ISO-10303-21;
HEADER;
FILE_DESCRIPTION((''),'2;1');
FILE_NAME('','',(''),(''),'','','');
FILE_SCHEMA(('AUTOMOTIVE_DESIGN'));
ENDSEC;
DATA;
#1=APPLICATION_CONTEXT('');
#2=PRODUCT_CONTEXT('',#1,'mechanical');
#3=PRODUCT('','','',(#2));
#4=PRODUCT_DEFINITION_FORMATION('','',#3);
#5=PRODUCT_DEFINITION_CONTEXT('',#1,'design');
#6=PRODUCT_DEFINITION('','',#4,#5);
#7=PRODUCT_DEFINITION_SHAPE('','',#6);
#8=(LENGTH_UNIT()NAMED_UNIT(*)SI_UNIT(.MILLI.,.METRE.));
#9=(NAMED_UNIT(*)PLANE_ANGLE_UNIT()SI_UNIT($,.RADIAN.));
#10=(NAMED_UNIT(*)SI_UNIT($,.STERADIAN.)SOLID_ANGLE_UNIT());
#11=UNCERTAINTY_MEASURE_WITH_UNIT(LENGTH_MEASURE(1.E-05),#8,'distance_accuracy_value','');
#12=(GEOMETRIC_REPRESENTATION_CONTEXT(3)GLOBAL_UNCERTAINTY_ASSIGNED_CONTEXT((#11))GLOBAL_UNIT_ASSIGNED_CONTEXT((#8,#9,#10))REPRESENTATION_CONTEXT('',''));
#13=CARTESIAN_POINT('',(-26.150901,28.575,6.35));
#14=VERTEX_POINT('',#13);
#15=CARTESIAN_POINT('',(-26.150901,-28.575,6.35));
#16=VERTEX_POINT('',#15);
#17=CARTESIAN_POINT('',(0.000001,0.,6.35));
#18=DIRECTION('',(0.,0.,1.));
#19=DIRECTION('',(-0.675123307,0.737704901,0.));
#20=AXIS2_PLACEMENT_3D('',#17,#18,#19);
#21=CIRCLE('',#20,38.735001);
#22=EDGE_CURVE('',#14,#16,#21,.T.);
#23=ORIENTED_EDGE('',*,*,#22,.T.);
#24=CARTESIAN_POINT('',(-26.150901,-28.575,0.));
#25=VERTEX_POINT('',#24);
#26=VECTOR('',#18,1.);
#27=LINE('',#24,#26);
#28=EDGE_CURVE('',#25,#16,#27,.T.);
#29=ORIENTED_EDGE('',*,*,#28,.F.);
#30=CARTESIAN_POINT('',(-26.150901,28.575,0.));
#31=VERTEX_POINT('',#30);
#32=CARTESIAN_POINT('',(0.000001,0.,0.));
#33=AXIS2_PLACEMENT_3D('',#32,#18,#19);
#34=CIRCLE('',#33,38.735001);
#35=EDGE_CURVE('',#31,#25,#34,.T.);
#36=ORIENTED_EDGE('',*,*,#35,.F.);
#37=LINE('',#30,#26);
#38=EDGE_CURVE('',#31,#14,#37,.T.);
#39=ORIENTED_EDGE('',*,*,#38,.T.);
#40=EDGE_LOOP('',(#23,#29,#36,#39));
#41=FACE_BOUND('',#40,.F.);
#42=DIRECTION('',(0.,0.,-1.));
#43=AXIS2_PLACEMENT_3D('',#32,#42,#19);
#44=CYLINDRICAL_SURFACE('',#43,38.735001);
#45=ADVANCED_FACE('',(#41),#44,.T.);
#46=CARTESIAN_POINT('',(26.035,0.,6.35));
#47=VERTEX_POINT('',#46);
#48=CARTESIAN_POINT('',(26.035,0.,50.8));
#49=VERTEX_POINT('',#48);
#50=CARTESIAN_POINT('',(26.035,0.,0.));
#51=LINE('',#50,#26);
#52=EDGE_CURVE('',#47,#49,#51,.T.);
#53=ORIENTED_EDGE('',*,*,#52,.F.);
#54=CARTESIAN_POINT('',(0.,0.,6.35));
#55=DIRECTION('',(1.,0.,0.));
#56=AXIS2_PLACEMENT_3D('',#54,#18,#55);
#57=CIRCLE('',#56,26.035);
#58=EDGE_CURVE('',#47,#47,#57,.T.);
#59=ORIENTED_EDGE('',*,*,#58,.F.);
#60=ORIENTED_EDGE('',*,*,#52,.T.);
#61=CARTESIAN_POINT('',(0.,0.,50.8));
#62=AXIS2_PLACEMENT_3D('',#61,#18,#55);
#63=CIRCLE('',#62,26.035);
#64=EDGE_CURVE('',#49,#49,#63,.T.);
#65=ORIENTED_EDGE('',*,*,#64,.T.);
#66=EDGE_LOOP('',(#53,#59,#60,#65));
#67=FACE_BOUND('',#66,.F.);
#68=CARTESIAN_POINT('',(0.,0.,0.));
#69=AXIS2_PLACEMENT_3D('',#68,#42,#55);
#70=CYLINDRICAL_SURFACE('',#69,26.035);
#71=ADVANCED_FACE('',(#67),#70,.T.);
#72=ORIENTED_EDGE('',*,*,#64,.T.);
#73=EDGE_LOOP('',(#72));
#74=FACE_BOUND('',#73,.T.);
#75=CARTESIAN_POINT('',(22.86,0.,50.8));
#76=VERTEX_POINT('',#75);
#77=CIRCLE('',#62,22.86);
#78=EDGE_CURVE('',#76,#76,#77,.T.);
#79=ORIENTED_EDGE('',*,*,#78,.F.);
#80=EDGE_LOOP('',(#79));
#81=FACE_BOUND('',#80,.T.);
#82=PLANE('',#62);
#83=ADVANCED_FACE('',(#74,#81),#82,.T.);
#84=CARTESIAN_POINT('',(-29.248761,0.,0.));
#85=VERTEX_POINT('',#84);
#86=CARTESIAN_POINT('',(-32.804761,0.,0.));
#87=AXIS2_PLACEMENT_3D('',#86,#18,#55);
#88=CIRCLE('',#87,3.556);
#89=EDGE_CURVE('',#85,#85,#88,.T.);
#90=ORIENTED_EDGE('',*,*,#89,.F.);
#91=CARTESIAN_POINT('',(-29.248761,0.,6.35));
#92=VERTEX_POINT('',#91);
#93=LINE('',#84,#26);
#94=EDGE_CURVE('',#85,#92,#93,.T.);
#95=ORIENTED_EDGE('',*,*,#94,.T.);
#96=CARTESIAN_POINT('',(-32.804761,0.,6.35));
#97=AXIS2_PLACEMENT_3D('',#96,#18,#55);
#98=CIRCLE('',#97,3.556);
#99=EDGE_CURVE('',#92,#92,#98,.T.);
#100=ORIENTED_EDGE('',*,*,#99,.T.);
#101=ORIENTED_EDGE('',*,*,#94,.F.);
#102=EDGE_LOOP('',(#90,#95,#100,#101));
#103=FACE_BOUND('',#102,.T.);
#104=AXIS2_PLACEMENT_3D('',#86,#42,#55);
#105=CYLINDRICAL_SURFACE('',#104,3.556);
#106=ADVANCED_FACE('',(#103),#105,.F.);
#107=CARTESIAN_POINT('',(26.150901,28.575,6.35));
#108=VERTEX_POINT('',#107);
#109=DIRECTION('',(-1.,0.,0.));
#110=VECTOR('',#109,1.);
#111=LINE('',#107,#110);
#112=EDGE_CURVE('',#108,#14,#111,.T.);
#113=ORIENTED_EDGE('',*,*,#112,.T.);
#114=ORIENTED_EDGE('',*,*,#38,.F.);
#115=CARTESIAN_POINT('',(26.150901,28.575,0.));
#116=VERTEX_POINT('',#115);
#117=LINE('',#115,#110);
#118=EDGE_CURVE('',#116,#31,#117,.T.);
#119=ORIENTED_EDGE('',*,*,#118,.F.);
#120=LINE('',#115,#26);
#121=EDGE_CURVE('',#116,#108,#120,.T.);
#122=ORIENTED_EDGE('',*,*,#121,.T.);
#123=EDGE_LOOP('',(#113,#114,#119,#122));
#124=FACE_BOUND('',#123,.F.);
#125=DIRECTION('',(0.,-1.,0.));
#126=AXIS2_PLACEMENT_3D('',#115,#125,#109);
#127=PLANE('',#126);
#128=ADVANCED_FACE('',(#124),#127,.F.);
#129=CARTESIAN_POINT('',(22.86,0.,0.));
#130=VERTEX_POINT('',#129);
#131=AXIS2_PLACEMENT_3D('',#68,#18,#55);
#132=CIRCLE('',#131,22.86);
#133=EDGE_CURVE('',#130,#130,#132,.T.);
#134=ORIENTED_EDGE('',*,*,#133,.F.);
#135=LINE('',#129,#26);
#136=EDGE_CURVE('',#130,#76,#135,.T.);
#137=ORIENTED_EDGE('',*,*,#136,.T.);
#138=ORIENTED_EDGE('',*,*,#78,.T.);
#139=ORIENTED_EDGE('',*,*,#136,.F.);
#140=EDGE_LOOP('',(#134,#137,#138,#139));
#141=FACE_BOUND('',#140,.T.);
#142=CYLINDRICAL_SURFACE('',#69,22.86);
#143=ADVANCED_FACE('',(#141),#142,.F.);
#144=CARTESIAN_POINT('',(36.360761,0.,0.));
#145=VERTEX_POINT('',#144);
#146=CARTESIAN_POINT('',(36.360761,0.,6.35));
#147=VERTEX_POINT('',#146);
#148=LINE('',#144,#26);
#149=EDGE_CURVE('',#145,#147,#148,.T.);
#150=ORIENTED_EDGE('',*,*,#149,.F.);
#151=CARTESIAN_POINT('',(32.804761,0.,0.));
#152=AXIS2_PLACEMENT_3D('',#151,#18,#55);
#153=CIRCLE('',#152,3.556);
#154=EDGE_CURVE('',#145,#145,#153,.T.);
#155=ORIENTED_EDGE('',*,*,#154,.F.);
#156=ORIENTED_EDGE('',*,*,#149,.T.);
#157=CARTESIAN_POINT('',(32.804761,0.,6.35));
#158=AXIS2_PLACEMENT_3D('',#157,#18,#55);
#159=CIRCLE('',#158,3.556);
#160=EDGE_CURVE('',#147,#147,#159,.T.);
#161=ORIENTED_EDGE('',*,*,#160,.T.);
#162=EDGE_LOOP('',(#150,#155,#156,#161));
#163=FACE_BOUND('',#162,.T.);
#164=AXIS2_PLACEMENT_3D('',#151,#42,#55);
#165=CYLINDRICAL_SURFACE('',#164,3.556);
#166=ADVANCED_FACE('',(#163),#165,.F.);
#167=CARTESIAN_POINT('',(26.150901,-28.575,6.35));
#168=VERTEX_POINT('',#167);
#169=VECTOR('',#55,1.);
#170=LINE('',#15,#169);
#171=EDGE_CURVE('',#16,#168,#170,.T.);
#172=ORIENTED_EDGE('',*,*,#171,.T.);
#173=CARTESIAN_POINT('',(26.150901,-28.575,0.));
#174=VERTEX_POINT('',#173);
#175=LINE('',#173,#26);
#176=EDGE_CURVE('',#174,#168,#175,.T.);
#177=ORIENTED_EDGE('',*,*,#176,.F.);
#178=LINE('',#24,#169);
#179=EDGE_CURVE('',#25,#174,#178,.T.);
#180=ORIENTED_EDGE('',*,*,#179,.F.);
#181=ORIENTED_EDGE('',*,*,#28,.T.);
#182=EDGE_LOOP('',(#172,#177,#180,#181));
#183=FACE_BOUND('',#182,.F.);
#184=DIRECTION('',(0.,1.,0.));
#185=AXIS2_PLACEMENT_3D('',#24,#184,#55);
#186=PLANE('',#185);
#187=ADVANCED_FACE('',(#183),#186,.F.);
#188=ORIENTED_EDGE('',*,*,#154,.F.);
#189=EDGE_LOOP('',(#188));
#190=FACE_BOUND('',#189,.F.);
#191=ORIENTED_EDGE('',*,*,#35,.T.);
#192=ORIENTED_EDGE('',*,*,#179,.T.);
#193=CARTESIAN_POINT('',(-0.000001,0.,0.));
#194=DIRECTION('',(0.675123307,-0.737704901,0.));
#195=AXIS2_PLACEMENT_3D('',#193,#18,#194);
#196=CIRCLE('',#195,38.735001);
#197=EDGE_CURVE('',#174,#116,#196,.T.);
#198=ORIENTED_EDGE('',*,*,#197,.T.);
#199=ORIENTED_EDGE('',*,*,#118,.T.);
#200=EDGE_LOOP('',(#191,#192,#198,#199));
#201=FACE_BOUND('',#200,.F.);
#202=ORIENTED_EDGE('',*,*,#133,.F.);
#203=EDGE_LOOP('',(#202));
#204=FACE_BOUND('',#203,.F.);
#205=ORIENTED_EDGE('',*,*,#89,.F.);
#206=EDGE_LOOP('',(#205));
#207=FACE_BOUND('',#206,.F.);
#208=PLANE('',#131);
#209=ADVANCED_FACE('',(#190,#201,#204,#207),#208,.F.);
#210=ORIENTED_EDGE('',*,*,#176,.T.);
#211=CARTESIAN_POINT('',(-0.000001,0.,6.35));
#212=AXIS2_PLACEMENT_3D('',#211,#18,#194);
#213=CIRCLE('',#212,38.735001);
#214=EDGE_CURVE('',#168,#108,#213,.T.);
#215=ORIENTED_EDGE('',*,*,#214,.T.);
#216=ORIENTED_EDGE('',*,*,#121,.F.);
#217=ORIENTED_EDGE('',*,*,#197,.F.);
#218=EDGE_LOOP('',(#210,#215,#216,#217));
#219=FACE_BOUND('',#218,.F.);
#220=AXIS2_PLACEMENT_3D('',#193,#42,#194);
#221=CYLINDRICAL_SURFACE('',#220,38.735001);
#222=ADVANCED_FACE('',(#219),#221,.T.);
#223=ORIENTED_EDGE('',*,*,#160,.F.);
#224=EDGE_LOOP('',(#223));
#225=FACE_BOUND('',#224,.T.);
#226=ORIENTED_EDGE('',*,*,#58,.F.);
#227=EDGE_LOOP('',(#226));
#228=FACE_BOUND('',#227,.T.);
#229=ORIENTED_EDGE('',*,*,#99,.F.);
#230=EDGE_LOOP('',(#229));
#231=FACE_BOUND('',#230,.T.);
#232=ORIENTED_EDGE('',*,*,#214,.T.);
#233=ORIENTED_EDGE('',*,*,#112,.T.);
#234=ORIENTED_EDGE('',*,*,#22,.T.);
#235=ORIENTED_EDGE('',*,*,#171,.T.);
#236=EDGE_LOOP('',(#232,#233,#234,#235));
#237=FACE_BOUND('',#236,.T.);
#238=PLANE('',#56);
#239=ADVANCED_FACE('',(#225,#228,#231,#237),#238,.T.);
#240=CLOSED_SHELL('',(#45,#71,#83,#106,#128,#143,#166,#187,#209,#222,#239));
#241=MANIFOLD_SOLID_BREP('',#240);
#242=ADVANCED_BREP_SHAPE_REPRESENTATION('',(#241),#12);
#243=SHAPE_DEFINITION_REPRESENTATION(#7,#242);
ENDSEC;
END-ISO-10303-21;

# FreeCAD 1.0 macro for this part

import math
import FreeCAD as App
import Part
import Sketcher
Q = App.Units.Quantity

doc = App.newDocument("Part")
body = doc.addObject("PartDesign::Body", "Body")

# Sketch on XY plane
sketch1 = body.newObject("Sketcher::SketchObject", "Sketch")
sketch1.AttachmentSupport = (doc.getObject("XY_Plane"), [""])
sketch1.MapMode = "FlatFace"
sketch1.addGeometry([
    Part.Circle(App.Vector(0, 0, 0), App.Vector(0, 0, 1), 26),
    Part.Circle(App.Vector(0, 0, 0), App.Vector(0, 0, 1), 23),
], False)
sketch1.addConstraint([
    Sketcher.Constraint("Coincident", 0, 3, -1, 1),
    Sketcher.Constraint("Coincident", 1, 3, -1, 1),
    Sketcher.Constraint("Diameter", 1, Q("1.8 in")),
    Sketcher.Constraint("Diameter", 0, Q("2.05 in")),
])
pad1 = body.newObject("PartDesign::Pad", "Pad")
pad1.Profile = sketch1
pad1.Length = Q("2 in")

# Sketch on XY plane
sketch2 = body.newObject("Sketcher::SketchObject", "Sketch001")
sketch2.AttachmentSupport = (doc.getObject("XY_Plane"), [""])
sketch2.MapMode = "FlatFace"
sketch2.addGeometry([
    Part.LineSegment(App.Vector(26.2, 28.6, 0), App.Vector(-26.2, 28.6, 0)),  # 0
    Part.ArcOfCircle(Part.Circle(App.Vector(0, 0, 0), App.Vector(0, 0, 1), 38.7), math.radians(132), math.radians(228)),  # 1
    Part.LineSegment(App.Vector(-26.2, -28.6, 0), App.Vector(26.2, -28.6, 0)),  # 2
    Part.ArcOfCircle(Part.Circle(App.Vector(0, 0, 0), App.Vector(0, 0, 1), 38.7), math.radians(-48), math.radians(48)),  # 3
    Part.Circle(App.Vector(-32.8, 0, 0), App.Vector(0, 0, 1), 3.6),  # 4
    Part.Circle(App.Vector(0, 0, 0), App.Vector(0, 0, 1), 26),  # 5
    Part.Circle(App.Vector(32.8, 0, 0), App.Vector(0, 0, 1), 3.6),  # 6
], False)
sketch2.addConstraint([
    Sketcher.Constraint("Coincident", 0, 2, 1, 1),
    Sketcher.Constraint("Coincident", 1, 2, 2, 1),
    Sketcher.Constraint("Coincident", 2, 2, 3, 1),
    Sketcher.Constraint("Coincident", 3, 2, 0, 1),
    Sketcher.Constraint("Horizontal", 0),
    Sketcher.Constraint("Horizontal", 2),
    Sketcher.Constraint("Coincident", 1, 3, -1, 1),
    Sketcher.Constraint("Coincident", 3, 3, -1, 1),
    Sketcher.Constraint("Coincident", 5, 3, -1, 1),
    Sketcher.Constraint("Equal", 1, 3),
    Sketcher.Constraint("Equal", 4, 6),
    Sketcher.Constraint("Symmetric", 4, 3, 6, 3, -1, 1),
    Sketcher.Constraint("PointOnObject", 4, 3, -1),
    Sketcher.Constraint("Vertical", 0, 2, 1, 2),
    Sketcher.Constraint("Diameter", 4, Q("0.28 in")),
    Sketcher.Constraint("Diameter", 5, Q("2.05 in")),
    Sketcher.Constraint("Radius", 1, Q("1.525 in")),
    Sketcher.Constraint("DistanceY", 1, 2, 0, 2, Q("2.25 in")),
    Sketcher.Constraint("DistanceX", 4, 3, -1, 1, 32.804761),
])
pad2 = body.newObject("PartDesign::Pad", "Pad001")
pad2.Profile = sketch2
pad2.Length = Q("0.25 in")

doc.recompute()
